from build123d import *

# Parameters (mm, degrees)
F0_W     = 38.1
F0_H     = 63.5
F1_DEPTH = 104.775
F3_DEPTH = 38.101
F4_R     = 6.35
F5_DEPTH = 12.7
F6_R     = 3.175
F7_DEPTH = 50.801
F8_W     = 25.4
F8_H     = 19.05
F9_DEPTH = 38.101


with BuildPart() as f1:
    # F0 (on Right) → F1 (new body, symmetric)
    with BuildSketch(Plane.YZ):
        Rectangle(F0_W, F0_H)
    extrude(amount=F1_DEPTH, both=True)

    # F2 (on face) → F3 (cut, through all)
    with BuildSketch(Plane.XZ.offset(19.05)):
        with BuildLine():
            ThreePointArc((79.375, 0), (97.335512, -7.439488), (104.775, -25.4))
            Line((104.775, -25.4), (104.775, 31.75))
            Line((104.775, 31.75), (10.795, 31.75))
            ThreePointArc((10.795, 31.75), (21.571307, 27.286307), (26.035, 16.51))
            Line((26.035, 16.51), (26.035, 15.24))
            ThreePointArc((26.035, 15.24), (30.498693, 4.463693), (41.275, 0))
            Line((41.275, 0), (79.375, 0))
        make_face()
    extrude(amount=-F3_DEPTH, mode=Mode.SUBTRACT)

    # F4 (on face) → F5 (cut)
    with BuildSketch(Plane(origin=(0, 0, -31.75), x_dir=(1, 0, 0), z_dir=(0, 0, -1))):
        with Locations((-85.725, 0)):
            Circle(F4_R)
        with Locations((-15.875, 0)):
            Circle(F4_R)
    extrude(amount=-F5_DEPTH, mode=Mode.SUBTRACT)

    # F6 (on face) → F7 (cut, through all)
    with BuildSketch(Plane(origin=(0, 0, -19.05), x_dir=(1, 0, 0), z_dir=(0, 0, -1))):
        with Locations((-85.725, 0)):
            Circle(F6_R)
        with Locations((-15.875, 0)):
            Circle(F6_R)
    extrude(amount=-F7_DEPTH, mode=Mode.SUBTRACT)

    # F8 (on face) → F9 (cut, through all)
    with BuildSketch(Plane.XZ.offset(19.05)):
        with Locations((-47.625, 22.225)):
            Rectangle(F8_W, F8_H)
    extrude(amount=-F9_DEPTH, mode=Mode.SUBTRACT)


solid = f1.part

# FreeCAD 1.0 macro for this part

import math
import FreeCAD as App
import Part
import Sketcher

V = App.Vector
Q = App.Units.Quantity

doc = App.newDocument("Part")
body = doc.addObject("PartDesign::Body", "Body")

sketch1 = body.newObject("Sketcher::SketchObject", "Sketch")
sketch1.AttachmentSupport = (doc.getObject("YZ_Plane"), [""])
sketch1.MapMode = "FlatFace"
sketch1.addGeometry([
    Part.LineSegment(V(-19, 32, 0), V(-19, -32, 0)),
    Part.LineSegment(V(-19, -32, 0), V(19, -32, 0)),
    Part.LineSegment(V(19, -32, 0), V(19, 32, 0)),
    Part.LineSegment(V(19, 32, 0), V(-19, 32, 0)),
], False)
sketch1.addConstraint([
    Sketcher.Constraint("Coincident", 0, 2, 1, 1),
    Sketcher.Constraint("Coincident", 1, 2, 2, 1),
    Sketcher.Constraint("Coincident", 2, 2, 3, 1),
    Sketcher.Constraint("Coincident", 3, 2, 0, 1),
    Sketcher.Constraint("Vertical", 0),
    Sketcher.Constraint("Horizontal", 1),
    Sketcher.Constraint("Vertical", 2),
    Sketcher.Constraint("Horizontal", 3),
    Sketcher.Constraint("Symmetric", 0, 2, 2, 2, -1, 1),
    Sketcher.Constraint("DistanceX", 1, 1, 1, 2, Q("1.5 in")),
    Sketcher.Constraint("DistanceY", 0, 2, 0, 1, Q("2.5 in")),
])
pad1 = body.newObject("PartDesign::Pad", "Pad")
pad1.Profile = sketch1
pad1.Length = Q("8.25 in")
pad1.Midplane = True

sketch2 = body.newObject("Sketcher::SketchObject", "Sketch001")
sketch2.AttachmentSupport = (doc.getObject("XZ_Plane"), [""])
sketch2.MapMode = "FlatFace"
sketch2.AttachmentOffset = App.Placement(V(0, 0, 0.75 * 25.4), App.Rotation())
sketch2.addGeometry([
    Part.ArcOfCircle(Part.Circle(V(79.4, -25.4, 0), V(0, 0, 1), 25.4), math.radians(0), math.radians(90)),
    Part.LineSegment(V(104.8, -25.4, 0), V(104.8, 31.8, 0)),
    Part.LineSegment(V(104.8, 31.8, 0), V(10.8, 31.8, 0)),
    Part.ArcOfCircle(Part.Circle(V(10.8, 16.5, 0), V(0, 0, 1), 15.2), math.radians(0), math.radians(90)),
    Part.LineSegment(V(26, 16.5, 0), V(26, 15.2, 0)),
    Part.ArcOfCircle(Part.Circle(V(41.3, 15.2, 0), V(0, 0, 1), 15.2), math.radians(-180), math.radians(-90)),
    Part.LineSegment(V(41.3, 0, 0), V(79.4, 0, 0)),
], False)
sketch2.addConstraint([
    Sketcher.Constraint("Tangent", 0, 1, 1, 1),
    Sketcher.Constraint("Coincident", 1, 2, 2, 1),
    Sketcher.Constraint("Tangent", 2, 2, 3, 2),
    Sketcher.Constraint("Tangent", 3, 1, 4, 1),
    Sketcher.Constraint("Tangent", 4, 2, 5, 1),
    Sketcher.Constraint("Tangent", 5, 2, 6, 1),
    Sketcher.Constraint("Tangent", 6, 2, 0, 2),
    Sketcher.Constraint("Vertical", 1),
    Sketcher.Constraint("Horizontal", 2),
    Sketcher.Constraint("Vertical", 4),
    Sketcher.Constraint("Horizontal", 6),
    Sketcher.Constraint("Equal", 3, 5),
    Sketcher.Constraint("PointOnObject", 5, 2, -1),
    Sketcher.Constraint("Radius", 0, Q("1 in")),
    Sketcher.Constraint("Radius", 3, Q("0.6 in")),
    Sketcher.Constraint("DistanceX", 2, 2, 2, 1, Q("3.7 in")),
    Sketcher.Constraint("DistanceY", 1, 1, 1, 2, Q("2.25 in")),
    Sketcher.Constraint("DistanceX", -1, 1, 0, 3, Q("3.125 in")),
])
pocket1 = body.newObject("PartDesign::Pocket", "Pocket")
pocket1.Profile = sketch2
pocket1.Type = "ThroughAll"

sketch3 = body.newObject("Sketcher::SketchObject", "Sketch002")
sketch3.AttachmentSupport = (doc.getObject("XY_Plane"), [""])
sketch3.MapMode = "FlatFace"
sketch3.AttachmentOffset = App.Placement(V(0, 0, -1.25 * 25.4), App.Rotation())
sketch3.addGeometry([
    Part.Circle(V(-86, 0, 0), V(0, 0, 1), 6),
    Part.Circle(V(-16, 0, 0), V(0, 0, 1), 6),
], False)
sketch3.addConstraint([
    Sketcher.Constraint("Equal", 0, 1),
    Sketcher.Constraint("PointOnObject", 0, 3, -1),
    Sketcher.Constraint("PointOnObject", 1, 3, -1),
    Sketcher.Constraint("Diameter", 0, Q("0.5 in")),
    Sketcher.Constraint("DistanceX", 0, 3, 1, 3, Q("2.75 in")),
    Sketcher.Constraint("DistanceX", 0, 3, -1, 1, Q("3.375 in")),
])
pocket2 = body.newObject("PartDesign::Pocket", "Pocket001")
pocket2.Profile = sketch3
pocket2.Length = Q("0.5 in")
pocket2.Reversed = True

sketch4 = body.newObject("Sketcher::SketchObject", "Sketch003")
sketch4.AttachmentSupport = (doc.getObject("XY_Plane"), [""])
sketch4.MapMode = "FlatFace"
sketch4.AttachmentOffset = App.Placement(V(0, 0, -0.75 * 25.4), App.Rotation())
sketch4.addGeometry([
    Part.Circle(V(-85.7, 0, 0), V(0, 0, 1), 3.2),
    Part.Circle(V(-15.9, 0, 0), V(0, 0, 1), 3.2),
], False)
sketch4.addConstraint([
    Sketcher.Constraint("Equal", 0, 1),
    Sketcher.Constraint("PointOnObject", 0, 3, -1),
    Sketcher.Constraint("PointOnObject", 1, 3, -1),
    Sketcher.Constraint("Diameter", 0, Q("0.25 in")),
    Sketcher.Constraint("DistanceX", 0, 3, 1, 3, Q("2.75 in")),
    Sketcher.Constraint("DistanceX", 0, 3, -1, 1, Q("3.375 in")),
])
pocket3 = body.newObject("PartDesign::Pocket", "Pocket002")
pocket3.Profile = sketch4
pocket3.Type = "ThroughAll"
pocket3.Reversed = True

sketch5 = body.newObject("Sketcher::SketchObject", "Sketch004")
sketch5.AttachmentSupport = (doc.getObject("XZ_Plane"), [""])
sketch5.MapMode = "FlatFace"
sketch5.AttachmentOffset = App.Placement(V(0, 0, 0.75 * 25.4), App.Rotation())
sketch5.addGeometry([
    Part.LineSegment(V(-60, 32, 0), V(-60, 13, 0)),
    Part.LineSegment(V(-60, 13, 0), V(-35, 13, 0)),
    Part.LineSegment(V(-35, 13, 0), V(-35, 32, 0)),
    Part.LineSegment(V(-35, 32, 0), V(-60, 32, 0)),
], False)
sketch5.addConstraint([
    Sketcher.Constraint("Coincident", 0, 2, 1, 1),
    Sketcher.Constraint("Coincident", 1, 2, 2, 1),
    Sketcher.Constraint("Coincident", 2, 2, 3, 1),
    Sketcher.Constraint("Coincident", 3, 2, 0, 1),
    Sketcher.Constraint("Vertical", 0),
    Sketcher.Constraint("Horizontal", 1),
    Sketcher.Constraint("Vertical", 2),
    Sketcher.Constraint("Horizontal", 3),
    Sketcher.Constraint("DistanceX", 1, 1, 1, 2, Q("1 in")),
    Sketcher.Constraint("DistanceY", 0, 2, 0, 1, Q("0.75 in")),
    Sketcher.Constraint("DistanceY", -1, 1, 0, 2, Q("0.5 in")),
    Sketcher.Constraint("DistanceX", 0, 2, -1, 1, Q("2.375 in")),
])
pocket4 = body.newObject("PartDesign::Pocket", "Pocket003")
pocket4.Profile = sketch5
pocket4.Type = "ThroughAll"

doc.recompute()
